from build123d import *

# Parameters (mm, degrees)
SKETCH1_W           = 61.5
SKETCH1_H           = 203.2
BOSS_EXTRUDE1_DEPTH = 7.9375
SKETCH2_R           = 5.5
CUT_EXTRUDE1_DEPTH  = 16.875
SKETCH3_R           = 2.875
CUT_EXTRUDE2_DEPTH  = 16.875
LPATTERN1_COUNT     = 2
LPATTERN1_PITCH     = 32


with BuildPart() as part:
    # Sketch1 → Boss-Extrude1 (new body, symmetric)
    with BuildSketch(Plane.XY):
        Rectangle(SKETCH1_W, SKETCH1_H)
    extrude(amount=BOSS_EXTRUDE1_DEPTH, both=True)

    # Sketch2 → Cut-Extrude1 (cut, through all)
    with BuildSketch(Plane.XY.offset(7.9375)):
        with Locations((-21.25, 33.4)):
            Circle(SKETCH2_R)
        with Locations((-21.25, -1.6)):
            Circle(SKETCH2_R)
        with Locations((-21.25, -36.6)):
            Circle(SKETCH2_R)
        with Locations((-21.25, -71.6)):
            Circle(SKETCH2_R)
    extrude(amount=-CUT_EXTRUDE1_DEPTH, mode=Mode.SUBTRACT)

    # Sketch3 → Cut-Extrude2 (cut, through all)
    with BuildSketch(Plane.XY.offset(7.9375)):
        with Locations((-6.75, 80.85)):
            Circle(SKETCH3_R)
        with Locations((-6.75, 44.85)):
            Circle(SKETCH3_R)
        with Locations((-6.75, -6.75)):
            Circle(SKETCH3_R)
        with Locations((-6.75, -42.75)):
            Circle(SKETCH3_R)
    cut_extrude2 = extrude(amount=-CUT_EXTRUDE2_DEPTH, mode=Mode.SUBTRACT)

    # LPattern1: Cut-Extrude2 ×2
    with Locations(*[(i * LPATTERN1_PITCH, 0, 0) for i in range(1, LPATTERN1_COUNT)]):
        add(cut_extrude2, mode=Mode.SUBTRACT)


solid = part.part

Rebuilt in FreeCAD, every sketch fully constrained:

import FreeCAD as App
import Part
import Sketcher

V = App.Vector


def add_polygon(sketch, points):
    """Adds a closed chain of lines whose ends are joined by coincident constraints."""
    first, n = sketch.GeometryCount, len(points)
    for a, b in zip(points, points[1:] + points[:1]):
        sketch.addGeometry(Part.LineSegment(App.Vector(*a, 0), App.Vector(*b, 0)), False)
    for i in range(n):
        sketch.addConstraint(Sketcher.Constraint("Coincident", first + i, 2, first + (i + 1) % n, 1))

doc = App.newDocument("Part")
body = doc.addObject("PartDesign::Body", "Body")

sketch1 = body.newObject("Sketcher::SketchObject", "Sketch")
sketch1.AttachmentSupport = (doc.getObject("XY_Plane"), [""])
sketch1.MapMode = "FlatFace"
add_polygon(sketch1, [(-31, 102), (-31, -102), (31, -102), (31, 102)])
sketch1.addConstraint(Sketcher.Constraint("Vertical", 0))
sketch1.addConstraint(Sketcher.Constraint("Horizontal", 1))
sketch1.addConstraint(Sketcher.Constraint("Vertical", 2))
sketch1.addConstraint(Sketcher.Constraint("Horizontal", 3))
sketch1.addConstraint(Sketcher.Constraint("Symmetric", 0, 2, 2, 2, -1, 1))
sketch1.addConstraint(Sketcher.Constraint("DistanceX", 1, 1, 1, 2, 61.5))
sketch1.addConstraint(Sketcher.Constraint("DistanceY", 0, 2, 0, 1, 203.2))
pad1 = body.newObject("PartDesign::Pad", "Pad")
pad1.Profile = sketch1
pad1.Length = 15.875
pad1.Midplane = True

sketch2 = body.newObject("Sketcher::SketchObject", "Sketch001")
sketch2.AttachmentSupport = (doc.getObject("XY_Plane"), [""])
sketch2.MapMode = "FlatFace"
sketch2.AttachmentOffset = App.Placement(V(0, 0, 7.9375), App.Rotation())
sketch2.addGeometry(Part.Circle(V(-21, 33, 0), V(0, 0, 1), 6), False)
sketch2.addGeometry(Part.Circle(V(-21, -2, 0), V(0, 0, 1), 6), False)
sketch2.addGeometry(Part.Circle(V(-21, -37, 0), V(0, 0, 1), 6), False)
sketch2.addGeometry(Part.Circle(V(-21, -72, 0), V(0, 0, 1), 6), False)
sketch2.addConstraint(Sketcher.Constraint("Equal", 0, 1))
sketch2.addConstraint(Sketcher.Constraint("Equal", 1, 2))
sketch2.addConstraint(Sketcher.Constraint("Equal", 2, 3))
sketch2.addConstraint(Sketcher.Constraint("Vertical", 0, 3, 1, 3))
sketch2.addConstraint(Sketcher.Constraint("Vertical", 1, 3, 2, 3))
sketch2.addConstraint(Sketcher.Constraint("Vertical", 2, 3, 3, 3))
sketch2.addConstraint(Sketcher.Constraint("Diameter", 0, 11.0))
sketch2.addConstraint(Sketcher.Constraint("DistanceY", 1, 3, 0, 3, 35.0))
sketch2.addConstraint(Sketcher.Constraint("DistanceY", 2, 3, 1, 3, 35.0))
sketch2.addConstraint(Sketcher.Constraint("DistanceY", 3, 3, 2, 3, 35.0))
sketch2.addConstraint(Sketcher.Constraint("DistanceY", -1, 1, 0, 3, 33.4))
sketch2.addConstraint(Sketcher.Constraint("DistanceX", 0, 3, -1, 1, 21.25))
pocket1 = body.newObject("PartDesign::Pocket", "Pocket")
pocket1.Profile = sketch2
pocket1.Type = "ThroughAll"

sketch3 = body.newObject("Sketcher::SketchObject", "Sketch002")
sketch3.AttachmentSupport = (doc.getObject("XY_Plane"), [""])
sketch3.MapMode = "FlatFace"
sketch3.AttachmentOffset = App.Placement(V(0, 0, 7.9375), App.Rotation())
sketch3.addGeometry(Part.Circle(V(-6.8, 80.8, 0), V(0, 0, 1), 2.9), False)
sketch3.addGeometry(Part.Circle(V(-6.8, 44.9, 0), V(0, 0, 1), 2.9), False)
sketch3.addGeometry(Part.Circle(V(-6.8, -6.8, 0), V(0, 0, 1), 2.9), False)
sketch3.addGeometry(Part.Circle(V(-6.8, -42.8, 0), V(0, 0, 1), 2.9), False)
sketch3.addConstraint(Sketcher.Constraint("Equal", 0, 1))
sketch3.addConstraint(Sketcher.Constraint("Equal", 1, 2))
sketch3.addConstraint(Sketcher.Constraint("Equal", 2, 3))
sketch3.addConstraint(Sketcher.Constraint("Vertical", 0, 3, 1, 3))
sketch3.addConstraint(Sketcher.Constraint("Vertical", 1, 3, 2, 3))
sketch3.addConstraint(Sketcher.Constraint("Vertical", 2, 3, 3, 3))
sketch3.addConstraint(Sketcher.Constraint("Diameter", 0, 5.75))
sketch3.addConstraint(Sketcher.Constraint("DistanceY", 1, 3, 0, 3, 36.0))
sketch3.addConstraint(Sketcher.Constraint("DistanceY", 3, 3, 2, 3, 36.0))
sketch3.addConstraint(Sketcher.Constraint("DistanceY", 2, 3, 1, 3, 51.6))
sketch3.addConstraint(Sketcher.Constraint("DistanceX", 0, 3, -1, 1, 6.75))
sketch3.addConstraint(Sketcher.Constraint("DistanceY", -1, 1, 0, 3, 80.85))
pocket2 = body.newObject("PartDesign::Pocket", "Pocket001")
pocket2.Profile = sketch3
pocket2.Type = "ThroughAll"
doc.recompute()

linearpattern = body.newObject("PartDesign::LinearPattern", "LinearPattern")
linearpattern.Originals = [pocket2]
linearpattern.Direction = (doc.getObject("X_Axis"), [""])
linearpattern.Mode = "offset"
linearpattern.Offset = 32
linearpattern.Occurrences = 2
body.Tip = linearpattern

doc.recompute()
